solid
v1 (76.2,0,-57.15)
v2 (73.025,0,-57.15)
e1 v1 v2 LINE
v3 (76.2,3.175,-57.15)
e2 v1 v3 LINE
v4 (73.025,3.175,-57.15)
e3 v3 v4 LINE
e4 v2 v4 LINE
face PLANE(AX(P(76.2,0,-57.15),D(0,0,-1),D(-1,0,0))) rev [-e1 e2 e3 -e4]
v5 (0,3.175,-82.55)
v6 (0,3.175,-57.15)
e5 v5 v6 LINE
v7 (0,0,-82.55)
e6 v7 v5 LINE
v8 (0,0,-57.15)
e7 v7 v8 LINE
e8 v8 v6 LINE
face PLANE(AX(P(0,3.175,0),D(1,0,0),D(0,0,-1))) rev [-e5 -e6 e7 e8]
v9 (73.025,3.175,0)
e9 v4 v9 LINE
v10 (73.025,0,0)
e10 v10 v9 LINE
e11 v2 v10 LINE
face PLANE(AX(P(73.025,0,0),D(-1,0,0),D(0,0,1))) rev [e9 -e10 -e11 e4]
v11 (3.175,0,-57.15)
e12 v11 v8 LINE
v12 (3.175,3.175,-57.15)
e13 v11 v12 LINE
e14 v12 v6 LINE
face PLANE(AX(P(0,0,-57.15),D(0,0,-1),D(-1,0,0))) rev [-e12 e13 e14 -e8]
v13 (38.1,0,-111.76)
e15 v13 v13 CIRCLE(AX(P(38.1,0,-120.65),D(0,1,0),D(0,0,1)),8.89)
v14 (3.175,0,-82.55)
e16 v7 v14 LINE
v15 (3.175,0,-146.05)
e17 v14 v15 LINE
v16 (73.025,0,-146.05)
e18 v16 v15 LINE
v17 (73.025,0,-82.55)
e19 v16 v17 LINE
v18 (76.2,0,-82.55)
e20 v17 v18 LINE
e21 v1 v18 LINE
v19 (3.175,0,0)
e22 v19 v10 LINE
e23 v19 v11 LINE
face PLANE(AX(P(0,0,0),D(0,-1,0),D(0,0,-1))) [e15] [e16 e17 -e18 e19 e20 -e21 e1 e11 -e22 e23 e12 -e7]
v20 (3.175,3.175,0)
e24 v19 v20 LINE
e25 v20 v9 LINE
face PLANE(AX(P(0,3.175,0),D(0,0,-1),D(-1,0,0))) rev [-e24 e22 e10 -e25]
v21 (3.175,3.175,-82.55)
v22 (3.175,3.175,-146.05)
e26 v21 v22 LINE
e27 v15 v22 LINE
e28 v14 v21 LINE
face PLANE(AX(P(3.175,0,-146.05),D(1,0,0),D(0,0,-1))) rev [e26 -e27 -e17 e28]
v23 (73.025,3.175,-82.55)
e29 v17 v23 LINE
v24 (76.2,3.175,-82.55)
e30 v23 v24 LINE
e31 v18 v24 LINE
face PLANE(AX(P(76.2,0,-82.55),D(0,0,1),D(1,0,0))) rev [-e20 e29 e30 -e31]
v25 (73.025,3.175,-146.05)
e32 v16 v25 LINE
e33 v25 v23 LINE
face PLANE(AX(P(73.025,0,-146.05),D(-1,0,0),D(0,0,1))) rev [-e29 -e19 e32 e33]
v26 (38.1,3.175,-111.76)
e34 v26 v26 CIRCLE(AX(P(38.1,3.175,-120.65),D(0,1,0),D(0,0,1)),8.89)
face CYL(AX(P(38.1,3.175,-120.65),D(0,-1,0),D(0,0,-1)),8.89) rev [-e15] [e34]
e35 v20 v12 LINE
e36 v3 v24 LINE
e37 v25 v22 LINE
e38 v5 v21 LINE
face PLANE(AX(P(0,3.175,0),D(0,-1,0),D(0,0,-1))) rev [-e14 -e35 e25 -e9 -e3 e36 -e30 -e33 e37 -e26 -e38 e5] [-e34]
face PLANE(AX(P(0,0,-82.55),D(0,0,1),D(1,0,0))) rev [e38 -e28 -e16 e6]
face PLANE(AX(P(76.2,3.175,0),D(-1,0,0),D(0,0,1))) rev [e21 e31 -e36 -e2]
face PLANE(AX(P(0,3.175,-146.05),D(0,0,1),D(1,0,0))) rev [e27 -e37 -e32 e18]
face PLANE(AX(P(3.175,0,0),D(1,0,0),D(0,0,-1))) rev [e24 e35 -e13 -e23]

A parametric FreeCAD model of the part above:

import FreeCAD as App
import Part
import Sketcher

V = App.Vector
Q = App.Units.Quantity

doc = App.newDocument("Part")
body = doc.addObject("PartDesign::Body", "Body")

# Sketch on XZ plane
sketch1 = body.newObject("Sketcher::SketchObject", "Sketch")
sketch1.AttachmentSupport = (doc.getObject("XZ_Plane"), [""])
sketch1.MapMode = "FlatFace"
sketch1.addGeometry(Part.LineSegment(V(0, -146, 0), V(0, 0, 0)), False)
sketch1.addGeometry(Part.LineSegment(V(0, 0, 0), V(76, 0, 0)), False)
sketch1.addGeometry(Part.LineSegment(V(76, 0, 0), V(76, -146, 0)), False)
sketch1.addGeometry(Part.LineSegment(V(76, -146, 0), V(0, -146, 0)), False)
sketch1.addGeometry(Part.Circle(V(38, -121, 0), V(0, 0, 1), 9), False)
sketch1.addConstraint(Sketcher.Constraint("Coincident", 0, 2, 1, 1))
sketch1.addConstraint(Sketcher.Constraint("Coincident", 1, 2, 2, 1))
sketch1.addConstraint(Sketcher.Constraint("Coincident", 2, 2, 3, 1))
sketch1.addConstraint(Sketcher.Constraint("Coincident", 3, 2, 0, 1))
sketch1.addConstraint(Sketcher.Constraint("Vertical", 0))
sketch1.addConstraint(Sketcher.Constraint("Horizontal", 1))
sketch1.addConstraint(Sketcher.Constraint("Vertical", 2))
sketch1.addConstraint(Sketcher.Constraint("Horizontal", 3))
sketch1.addConstraint(Sketcher.Constraint("Coincident", 0, 2, -1, 1))
sketch1.addConstraint(Sketcher.Constraint("Diameter", 4, Q("0.7 in")))
sketch1.addConstraint(Sketcher.Constraint("DistanceX", 1, 1, 1, 2, Q("3 in")))
sketch1.addConstraint(Sketcher.Constraint("DistanceY", 2, 2, 4, 3, Q("1 in")))
sketch1.addConstraint(Sketcher.Constraint("DistanceY", 0, 1, 0, 2, Q("5.75 in")))
sketch1.addConstraint(Sketcher.Constraint("DistanceX", -1, 1, 4, 3, Q("1.5 in")))
pad1 = body.newObject("PartDesign::Pad", "Pad")
pad1.Profile = sketch1
pad1.Length = Q("0.125 in")
pad1.Reversed = True

# Sketch on XZ plane
sketch2 = body.newObject("Sketcher::SketchObject", "Sketch001")
sketch2.AttachmentSupport = (doc.getObject("XZ_Plane"), [""])
sketch2.MapMode = "FlatFace"
sketch2.AttachmentOffset = App.Placement(V(0, 0, -0.125 * 25.4), App.Rotation())
sketch2.addGeometry(Part.LineSegment(V(0, -57.1, 0), V(0, 0, 0)), False)
sketch2.addGeometry(Part.LineSegment(V(0, 0, 0), V(3.2, 0, 0)), False)
sketch2.addGeometry(Part.LineSegment(V(3.2, 0, 0), V(3.2, -57.1, 0)), False)
sketch2.addGeometry(Part.LineSegment(V(3.2, -57.1, 0), V(0, -57.1, 0)), False)
sketch2.addGeometry(Part.LineSegment(V(0, -146.1, 0), V(0, -82.5, 0)), False)
sketch2.addGeometry(Part.LineSegment(V(0, -82.5, 0), V(3.2, -82.5, 0)), False)
sketch2.addGeometry(Part.LineSegment(V(3.2, -82.5, 0), V(3.2, -146.1, 0)), False)
sketch2.addGeometry(Part.LineSegment(V(3.2, -146.1, 0), V(0, -146.1, 0)), False)
sketch2.addGeometry(Part.LineSegment(V(73, -146.1, 0), V(73, -82.5, 0)), False)
sketch2.addGeometry(Part.LineSegment(V(73, -82.5, 0), V(76.2, -82.5, 0)), False)
sketch2.addGeometry(Part.LineSegment(V(76.2, -82.5, 0), V(76.2, -146.1, 0)), False)
sketch2.addGeometry(Part.LineSegment(V(76.2, -146.1, 0), V(73, -146.1, 0)), False)
sketch2.addGeometry(Part.LineSegment(V(73, -57.1, 0), V(73, 0, 0)), False)
sketch2.addGeometry(Part.LineSegment(V(73, 0, 0), V(76.2, 0, 0)), False)
sketch2.addGeometry(Part.LineSegment(V(76.2, 0, 0), V(76.2, -57.1, 0)), False)
sketch2.addGeometry(Part.LineSegment(V(76.2, -57.1, 0), V(73, -57.1, 0)), False)
sketch2.addConstraint(Sketcher.Constraint("Coincident", 0, 2, 1, 1))
sketch2.addConstraint(Sketcher.Constraint("Coincident", 1, 2, 2, 1))
sketch2.addConstraint(Sketcher.Constraint("Coincident", 2, 2, 3, 1))
sketch2.addConstraint(Sketcher.Constraint("Coincident", 3, 2, 0, 1))
sketch2.addConstraint(Sketcher.Constraint("Coincident", 4, 2, 5, 1))
sketch2.addConstraint(Sketcher.Constraint("Coincident", 5, 2, 6, 1))
sketch2.addConstraint(Sketcher.Constraint("Coincident", 6, 2, 7, 1))
sketch2.addConstraint(Sketcher.Constraint("Coincident", 7, 2, 4, 1))
sketch2.addConstraint(Sketcher.Constraint("Coincident", 8, 2, 9, 1))
sketch2.addConstraint(Sketcher.Constraint("Coincident", 9, 2, 10, 1))
sketch2.addConstraint(Sketcher.Constraint("Coincident", 10, 2, 11, 1))
sketch2.addConstraint(Sketcher.Constraint("Coincident", 11, 2, 8, 1))
sketch2.addConstraint(Sketcher.Constraint("Coincident", 12, 2, 13, 1))
sketch2.addConstraint(Sketcher.Constraint("Coincident", 13, 2, 14, 1))
sketch2.addConstraint(Sketcher.Constraint("Coincident", 14, 2, 15, 1))
sketch2.addConstraint(Sketcher.Constraint("Coincident", 15, 2, 12, 1))
sketch2.addConstraint(Sketcher.Constraint("Vertical", 0))
sketch2.addConstraint(Sketcher.Constraint("Horizontal", 1))
sketch2.addConstraint(Sketcher.Constraint("Vertical", 2))
sketch2.addConstraint(Sketcher.Constraint("Horizontal", 3))
sketch2.addConstraint(Sketcher.Constraint("Vertical", 4))
sketch2.addConstraint(Sketcher.Constraint("Horizontal", 5))
sketch2.addConstraint(Sketcher.Constraint("Vertical", 6))
sketch2.addConstraint(Sketcher.Constraint("Horizontal", 7))
sketch2.addConstraint(Sketcher.Constraint("Vertical", 8))
sketch2.addConstraint(Sketcher.Constraint("Horizontal", 9))
sketch2.addConstraint(Sketcher.Constraint("Vertical", 10))
sketch2.addConstraint(Sketcher.Constraint("Horizontal", 11))
sketch2.addConstraint(Sketcher.Constraint("Vertical", 12))
sketch2.addConstraint(Sketcher.Constraint("Horizontal", 13))
sketch2.addConstraint(Sketcher.Constraint("Vertical", 14))
sketch2.addConstraint(Sketcher.Constraint("Horizontal", 15))
sketch2.addConstraint(Sketcher.Constraint("Coincident", 0, 2, -1, 1))
sketch2.addConstraint(Sketcher.Constraint("PointOnObject", 4, 2, -2))
sketch2.addConstraint(Sketcher.Constraint("PointOnObject", 12, 2, -1))
sketch2.addConstraint(Sketcher.Constraint("Horizontal", 5, 2, 8, 2))
sketch2.addConstraint(Sketcher.Constraint("Horizontal", 7, 2, 10, 2))
sketch2.addConstraint(Sketcher.Constraint("Horizontal", 3, 2, 14, 2))
sketch2.addConstraint(Sketcher.Constraint("Vertical", 2, 2, 5, 2))
sketch2.addConstraint(Sketcher.Constraint("Vertical", 11, 2, 12, 2))
sketch2.addConstraint(Sketcher.Constraint("Vertical", 10, 2, 13, 2))
sketch2.addConstraint(Sketcher.Constraint("Equal", 7, 9))
sketch2.addConstraint(Sketcher.Constraint("DistanceY", 4, 1, 4, 2, Q("2.5 in")))
sketch2.addConstraint(Sketcher.Constraint("DistanceX", -1, 1, 9, 2, Q("3 in")))
sketch2.addConstraint(Sketcher.Constraint("DistanceY", 4, 2, 3, 2, Q("1 in")))
sketch2.addConstraint(Sketcher.Constraint("DistanceY", 0, 1, 0, 2, Q("2.25 in")))
sketch2.addConstraint(Sketcher.Constraint("DistanceX", 1, 1, 1, 2, Q("0.125 in")))
pocket1 = body.newObject("PartDesign::Pocket", "Pocket")
pocket1.Profile = sketch2
pocket1.Length = Q("0.125 in")
pocket1.Reversed = True

doc.recompute()
